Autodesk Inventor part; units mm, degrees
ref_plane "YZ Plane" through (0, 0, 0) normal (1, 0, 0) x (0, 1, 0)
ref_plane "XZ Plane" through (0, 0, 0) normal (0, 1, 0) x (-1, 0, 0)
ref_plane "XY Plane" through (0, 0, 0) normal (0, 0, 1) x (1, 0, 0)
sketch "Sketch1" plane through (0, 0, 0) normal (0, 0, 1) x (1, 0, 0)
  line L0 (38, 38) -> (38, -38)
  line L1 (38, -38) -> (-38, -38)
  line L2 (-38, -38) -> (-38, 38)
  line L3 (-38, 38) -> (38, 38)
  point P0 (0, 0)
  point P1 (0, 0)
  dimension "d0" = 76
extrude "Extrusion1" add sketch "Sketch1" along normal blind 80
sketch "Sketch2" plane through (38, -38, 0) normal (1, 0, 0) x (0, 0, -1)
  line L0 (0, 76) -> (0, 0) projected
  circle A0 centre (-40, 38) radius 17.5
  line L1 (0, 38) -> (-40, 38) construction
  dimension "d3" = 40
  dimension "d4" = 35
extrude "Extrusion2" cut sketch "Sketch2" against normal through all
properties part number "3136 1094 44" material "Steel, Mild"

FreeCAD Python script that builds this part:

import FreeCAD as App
import Part
import Sketcher

V = App.Vector

doc = App.newDocument("Part")
params = doc.addObject("Spreadsheet::Sheet", "Params")
for row, (alias, value) in enumerate([
    ("sketch1_width", "76 mm"),
    ("pad1_length", "80 mm"),
    ("sketch2_diameter", "35 mm"),
], start=1):
    params.set(f"A{row}", alias)
    params.set(f"B{row}", "=" + value)
    params.setAlias(f"B{row}", alias)

body = doc.addObject("PartDesign::Body", "Body")

sketch1 = body.newObject("Sketcher::SketchObject", "Sketch")
sketch1.AttachmentSupport = (doc.getObject("XY_Plane"), [""])
sketch1.MapMode = "FlatFace"
sketch1.addGeometry([
    Part.LineSegment(V(38, -38, 0), V(38, 38, 0)),
    Part.LineSegment(V(38, 38, 0), V(-38, 38, 0)),
    Part.LineSegment(V(-38, 38, 0), V(-38, -38, 0)),
    Part.LineSegment(V(-38, -38, 0), V(38, -38, 0)),
], False)
sketch1.addConstraint([
    Sketcher.Constraint("Coincident", 0, 2, 1, 1),
    Sketcher.Constraint("Coincident", 1, 2, 2, 1),
    Sketcher.Constraint("Coincident", 2, 2, 3, 1),
    Sketcher.Constraint("Coincident", 3, 2, 0, 1),
    Sketcher.Constraint("Vertical", 0),
    Sketcher.Constraint("Horizontal", 1),
    Sketcher.Constraint("Vertical", 2),
    Sketcher.Constraint("Horizontal", 3),
    Sketcher.Constraint("Symmetric", 0, 2, 2, 2, -1, 1),
    Sketcher.Constraint("Equal", 3, 0),
    Sketcher.Constraint("DistanceX", 1, 2, 1, 1, 76.0),
])
sketch1.setExpression("Constraints[10]", "Params.sketch1_width")
pad1 = body.newObject("PartDesign::Pad", "Pad")
pad1.Profile = sketch1
pad1.setExpression("Length", "Params.pad1_length")

sketch2 = body.newObject("Sketcher::SketchObject", "Sketch001")
sketch2.AttachmentSupport = (doc.getObject("YZ_Plane"), [""])
sketch2.MapMode = "FlatFace"
sketch2.AttachmentOffset = App.Placement(V(0, 0, 38), App.Rotation())
sketch2.addGeometry(Part.Circle(V(0, 40, 0), V(0, 0, 1), 18), False)
sketch2.addConstraint([
    Sketcher.Constraint("PointOnObject", 0, 3, -2),
    Sketcher.Constraint("Diameter", 0, 35.0),
    Sketcher.Constraint("DistanceY", -1, 1, 0, 3, 40.0),
])
sketch2.setExpression("Constraints[1]", "Params.sketch2_diameter")
pocket1 = body.newObject("PartDesign::Pocket", "Pocket")
pocket1.Profile = sketch2
pocket1.Type = "ThroughAll"

doc.recompute()
